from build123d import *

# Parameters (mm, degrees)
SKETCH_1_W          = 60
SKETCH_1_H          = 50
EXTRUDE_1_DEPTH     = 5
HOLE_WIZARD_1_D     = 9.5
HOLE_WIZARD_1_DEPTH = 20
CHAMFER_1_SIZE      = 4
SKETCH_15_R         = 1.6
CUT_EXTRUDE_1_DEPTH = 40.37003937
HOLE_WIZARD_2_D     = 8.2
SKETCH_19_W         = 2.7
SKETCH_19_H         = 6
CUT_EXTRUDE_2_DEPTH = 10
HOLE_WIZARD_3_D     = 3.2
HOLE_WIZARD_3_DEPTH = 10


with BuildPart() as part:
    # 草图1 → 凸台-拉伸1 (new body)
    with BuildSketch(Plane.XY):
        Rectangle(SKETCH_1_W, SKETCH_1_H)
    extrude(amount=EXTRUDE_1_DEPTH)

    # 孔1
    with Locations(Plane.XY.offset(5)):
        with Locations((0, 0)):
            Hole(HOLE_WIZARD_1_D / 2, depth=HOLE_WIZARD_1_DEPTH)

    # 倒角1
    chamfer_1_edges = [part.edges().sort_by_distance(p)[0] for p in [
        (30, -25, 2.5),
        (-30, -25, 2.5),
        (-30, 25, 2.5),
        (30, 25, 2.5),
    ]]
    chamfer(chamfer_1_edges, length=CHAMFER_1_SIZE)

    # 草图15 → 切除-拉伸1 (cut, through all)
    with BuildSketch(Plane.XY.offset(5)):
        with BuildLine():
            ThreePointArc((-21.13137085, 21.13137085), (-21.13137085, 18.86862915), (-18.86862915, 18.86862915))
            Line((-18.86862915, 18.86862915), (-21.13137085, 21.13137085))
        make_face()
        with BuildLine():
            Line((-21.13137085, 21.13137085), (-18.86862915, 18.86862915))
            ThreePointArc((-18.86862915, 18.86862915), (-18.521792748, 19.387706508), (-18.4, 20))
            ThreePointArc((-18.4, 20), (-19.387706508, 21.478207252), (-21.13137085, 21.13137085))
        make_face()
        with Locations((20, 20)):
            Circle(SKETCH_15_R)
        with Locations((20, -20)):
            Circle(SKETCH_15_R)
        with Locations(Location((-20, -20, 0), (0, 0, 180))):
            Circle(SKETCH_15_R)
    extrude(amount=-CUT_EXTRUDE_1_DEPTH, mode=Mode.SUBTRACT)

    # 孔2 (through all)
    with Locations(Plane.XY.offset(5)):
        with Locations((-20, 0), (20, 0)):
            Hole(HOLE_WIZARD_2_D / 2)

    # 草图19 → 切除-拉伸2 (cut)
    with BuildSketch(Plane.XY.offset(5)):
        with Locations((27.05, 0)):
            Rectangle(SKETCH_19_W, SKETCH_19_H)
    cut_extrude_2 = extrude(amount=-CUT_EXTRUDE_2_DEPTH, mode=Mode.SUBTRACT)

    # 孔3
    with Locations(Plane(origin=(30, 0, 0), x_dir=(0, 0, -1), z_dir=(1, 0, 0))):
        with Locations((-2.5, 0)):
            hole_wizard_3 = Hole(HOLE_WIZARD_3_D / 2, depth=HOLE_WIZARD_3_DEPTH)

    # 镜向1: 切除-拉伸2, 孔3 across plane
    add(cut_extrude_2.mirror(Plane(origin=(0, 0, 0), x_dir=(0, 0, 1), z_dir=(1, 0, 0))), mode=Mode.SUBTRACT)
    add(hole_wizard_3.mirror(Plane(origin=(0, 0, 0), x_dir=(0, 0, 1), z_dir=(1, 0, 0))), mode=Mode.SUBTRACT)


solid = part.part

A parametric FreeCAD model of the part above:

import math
import FreeCAD as App
import Part
import Sketcher
from FreeCAD import Vector


def edges_at(feature, points):
    """Names of the edges that pass closest to the given points."""
    edges = feature.Shape.Edges
    near = lambda p: min(range(len(edges)), key=lambda i: edges[i].distToShape(Part.Vertex(*p))[0])
    return sorted({f"Edge{near(p) + 1}" for p in points})


def add_polygon(sketch, points):
    """Adds a closed chain of lines whose ends are joined by coincident constraints."""
    first, n = sketch.GeometryCount, len(points)
    for a, b in zip(points, points[1:] + points[:1]):
        sketch.addGeometry(Part.LineSegment(App.Vector(*a, 0), App.Vector(*b, 0)), False)
    for i in range(n):
        sketch.addConstraint(Sketcher.Constraint("Coincident", first + i, 2, first + (i + 1) % n, 1))

doc = App.newDocument("Part")
body = doc.addObject("PartDesign::Body", "Body")

# Sketch on XY plane
sketch1 = doc.addObject("Sketcher::SketchObject", "Sketch")
body.addObject(sketch1)
sketch1.AttachmentSupport = (doc.XY_Plane, [""])
sketch1.MapMode = "FlatFace"
add_polygon(sketch1, [(-30, 25), (-30, -25), (30, -25), (30, 25)])  # lines 0-3
sketch1.addConstraint([
    Sketcher.Constraint("Vertical", 0),
    Sketcher.Constraint("Horizontal", 1),
    Sketcher.Constraint("Vertical", 2),
    Sketcher.Constraint("Horizontal", 3),
    Sketcher.Constraint("Symmetric", 0, 2, 2, 2, -1, 1),
    Sketcher.Constraint("DistanceX", 1, 1, 1, 2, 60.0),
    Sketcher.Constraint("DistanceY", 0, 2, 0, 1, 50.0),
])
pad1 = doc.addObject("PartDesign::Pad", "Pad")
body.addObject(pad1)
pad1.Profile = sketch1
pad1.Length = 5

# Sketch on XY plane
sketch2 = doc.addObject("Sketcher::SketchObject", "Sketch001")
body.addObject(sketch2)
sketch2.AttachmentSupport = (doc.XY_Plane, [""])
sketch2.MapMode = "FlatFace"
sketch2.AttachmentOffset = App.Placement(Vector(0, 0, 5), App.Rotation())
sketch2.addGeometry(Part.Circle(Vector(0, 0, 0), Vector(0, 0, 1), 4.8), False)
sketch2.addConstraint([
    Sketcher.Constraint("Coincident", 0, 3, -1, 1),
    Sketcher.Constraint("Diameter", 0, 9.5),
])
doc.recompute()
hole = doc.addObject("PartDesign::Hole", "Hole")
body.addObject(hole)
hole.Profile = sketch2
hole.ThreadType = "None"
hole.Diameter = 9.5
hole.DepthType = "Dimension"
hole.Depth = 20
hole.DrillPoint = "Flat"
doc.recompute()

chamfer = doc.addObject("PartDesign::Chamfer", "Chamfer")
body.addObject(chamfer)
chamfer.Base = (hole, edges_at(hole, [
    (30, -25, 2.5),
    (-30, -25, 2.5),
    (-30, 25, 2.5),
    (30, 25, 2.5),
]))
chamfer.Size = 4

# Sketch on XY plane
sketch3 = doc.addObject("Sketcher::SketchObject", "Sketch002")
body.addObject(sketch3)
sketch3.AttachmentSupport = (doc.XY_Plane, [""])
sketch3.MapMode = "FlatFace"
sketch3.AttachmentOffset = App.Placement(Vector(0, 0, 5), App.Rotation())
sketch3.addGeometry([
    Part.ArcOfCircle(Part.Circle(Vector(-20, 20, 0), Vector(0, 0, 1), 1.6), math.radians(135), math.radians(315)),  # 0
    Part.ArcOfCircle(Part.Circle(Vector(-20, 20, 0), Vector(0, 0, 1), 1.6), math.radians(-45), math.radians(0)),  # 1
    Part.ArcOfCircle(Part.Circle(Vector(-20, 20, 0), Vector(0, 0, 1), 1.6), math.radians(0), math.radians(135)),  # 2
    Part.Circle(Vector(20, 20, 0), Vector(0, 0, 1), 1.6),  # 3
    Part.Circle(Vector(20, -20, 0), Vector(0, 0, 1), 1.6),  # 4
    Part.Circle(Vector(-20, -20, 0), Vector(0, 0, 1), 1.6),  # 5
], False)
sketch3.addConstraint([
    Sketcher.Constraint("Tangent", 0, 2, 1, 1),
    Sketcher.Constraint("Tangent", 1, 2, 2, 1),
    Sketcher.Constraint("Tangent", 2, 2, 0, 1),
    Sketcher.Constraint("Equal", 2, 3),
    Sketcher.Constraint("Equal", 3, 4),
    Sketcher.Constraint("Equal", 4, 5),
    Sketcher.Constraint("Symmetric", 0, 3, 4, 3, -1, 1),
    Sketcher.Constraint("Symmetric", 3, 3, 5, 3, -1, 1),
    Sketcher.Constraint("Symmetric", 0, 3, 3, 3, -2),
    Sketcher.Constraint("Horizontal", 3, 3, 1, 2),
    Sketcher.Constraint("Diameter", 3, 3.2),
    Sketcher.Constraint("DistanceX", 0, 3, -1, 1, 20.0),
    Sketcher.Constraint("DistanceY", -1, 1, 0, 3, 20.0),
    Sketcher.Constraint("DistanceX", 0, 2, -1, 1, 18.868629),
    Sketcher.Constraint("DistanceX", 2, 2, -1, 1, 21.131371),
])
pocket1 = doc.addObject("PartDesign::Pocket", "Pocket")
body.addObject(pocket1)
pocket1.Profile = sketch3
pocket1.Type = "ThroughAll"

# Sketch on XY plane
sketch4 = doc.addObject("Sketcher::SketchObject", "Sketch003")
body.addObject(sketch4)
sketch4.AttachmentSupport = (doc.XY_Plane, [""])
sketch4.MapMode = "FlatFace"
sketch4.AttachmentOffset = App.Placement(Vector(0, 0, 5), App.Rotation())
sketch4.addGeometry([
    Part.Circle(Vector(-20, 0, 0), Vector(0, 0, 1), 4.1),
    Part.Circle(Vector(20, 0, 0), Vector(0, 0, 1), 4.1),
], False)
sketch4.addConstraint([
    Sketcher.Constraint("Equal", 0, 1),
    Sketcher.Constraint("Symmetric", 0, 3, 1, 3, -1, 1),
    Sketcher.Constraint("PointOnObject", 0, 3, -1),
    Sketcher.Constraint("Diameter", 0, 8.2),
    Sketcher.Constraint("DistanceX", 0, 3, -1, 1, 20.0),
])
doc.recompute()
hole2 = doc.addObject("PartDesign::Hole", "Hole001")
body.addObject(hole2)
hole2.Profile = sketch4
hole2.ThreadType = "None"
hole2.Diameter = 8.2
hole2.DepthType = "ThroughAll"

# Sketch on XY plane
sketch5 = doc.addObject("Sketcher::SketchObject", "Sketch004")
body.addObject(sketch5)
sketch5.AttachmentSupport = (doc.XY_Plane, [""])
sketch5.MapMode = "FlatFace"
sketch5.AttachmentOffset = App.Placement(Vector(0, 0, 5), App.Rotation())
add_polygon(sketch5, [(25.7, 3), (25.7, -3), (28.4, -3), (28.4, 3)])  # lines 0-3
sketch5.addConstraint([
    Sketcher.Constraint("Vertical", 0),
    Sketcher.Constraint("Horizontal", 1),
    Sketcher.Constraint("Vertical", 2),
    Sketcher.Constraint("Horizontal", 3),
    Sketcher.Constraint("DistanceY", 0, 2, 0, 1, 6.0),
    Sketcher.Constraint("DistanceX", 1, 1, 1, 2, 2.7),
    Sketcher.Constraint("DistanceY", 0, 2, -1, 1, 3.0),
    Sketcher.Constraint("DistanceX", -1, 1, 0, 2, 25.7),
])
pocket2 = doc.addObject("PartDesign::Pocket", "Pocket001")
body.addObject(pocket2)
pocket2.Profile = sketch5
pocket2.Length = 10

# Sketch on YZ plane
sketch6 = doc.addObject("Sketcher::SketchObject", "Sketch005")
body.addObject(sketch6)
sketch6.AttachmentSupport = (doc.YZ_Plane, [""])
sketch6.MapMode = "FlatFace"
sketch6.AttachmentOffset = App.Placement(Vector(0, 0, 30), App.Rotation())
sketch6.addGeometry(Part.Circle(Vector(0, 2.5, 0), Vector(0, 0, 1), 1.6), False)
sketch6.addConstraint([
    Sketcher.Constraint("PointOnObject", 0, 3, -2),
    Sketcher.Constraint("Diameter", 0, 3.2),
    Sketcher.Constraint("DistanceY", -1, 1, 0, 3, 2.5),
])
doc.recompute()
hole3 = doc.addObject("PartDesign::Hole", "Hole002")
body.addObject(hole3)
hole3.Profile = sketch6
hole3.ThreadType = "None"
hole3.Diameter = 3.2
hole3.DepthType = "Dimension"
hole3.Depth = 10
hole3.DrillPoint = "Flat"
doc.recompute()

mirrored = doc.addObject("PartDesign::Mirrored", "Mirrored")
body.addObject(mirrored)
mirrored.Originals = [pocket2, hole3]
mirrored.MirrorPlane = (doc.YZ_Plane, [""])
body.Tip = mirrored

doc.recompute()
